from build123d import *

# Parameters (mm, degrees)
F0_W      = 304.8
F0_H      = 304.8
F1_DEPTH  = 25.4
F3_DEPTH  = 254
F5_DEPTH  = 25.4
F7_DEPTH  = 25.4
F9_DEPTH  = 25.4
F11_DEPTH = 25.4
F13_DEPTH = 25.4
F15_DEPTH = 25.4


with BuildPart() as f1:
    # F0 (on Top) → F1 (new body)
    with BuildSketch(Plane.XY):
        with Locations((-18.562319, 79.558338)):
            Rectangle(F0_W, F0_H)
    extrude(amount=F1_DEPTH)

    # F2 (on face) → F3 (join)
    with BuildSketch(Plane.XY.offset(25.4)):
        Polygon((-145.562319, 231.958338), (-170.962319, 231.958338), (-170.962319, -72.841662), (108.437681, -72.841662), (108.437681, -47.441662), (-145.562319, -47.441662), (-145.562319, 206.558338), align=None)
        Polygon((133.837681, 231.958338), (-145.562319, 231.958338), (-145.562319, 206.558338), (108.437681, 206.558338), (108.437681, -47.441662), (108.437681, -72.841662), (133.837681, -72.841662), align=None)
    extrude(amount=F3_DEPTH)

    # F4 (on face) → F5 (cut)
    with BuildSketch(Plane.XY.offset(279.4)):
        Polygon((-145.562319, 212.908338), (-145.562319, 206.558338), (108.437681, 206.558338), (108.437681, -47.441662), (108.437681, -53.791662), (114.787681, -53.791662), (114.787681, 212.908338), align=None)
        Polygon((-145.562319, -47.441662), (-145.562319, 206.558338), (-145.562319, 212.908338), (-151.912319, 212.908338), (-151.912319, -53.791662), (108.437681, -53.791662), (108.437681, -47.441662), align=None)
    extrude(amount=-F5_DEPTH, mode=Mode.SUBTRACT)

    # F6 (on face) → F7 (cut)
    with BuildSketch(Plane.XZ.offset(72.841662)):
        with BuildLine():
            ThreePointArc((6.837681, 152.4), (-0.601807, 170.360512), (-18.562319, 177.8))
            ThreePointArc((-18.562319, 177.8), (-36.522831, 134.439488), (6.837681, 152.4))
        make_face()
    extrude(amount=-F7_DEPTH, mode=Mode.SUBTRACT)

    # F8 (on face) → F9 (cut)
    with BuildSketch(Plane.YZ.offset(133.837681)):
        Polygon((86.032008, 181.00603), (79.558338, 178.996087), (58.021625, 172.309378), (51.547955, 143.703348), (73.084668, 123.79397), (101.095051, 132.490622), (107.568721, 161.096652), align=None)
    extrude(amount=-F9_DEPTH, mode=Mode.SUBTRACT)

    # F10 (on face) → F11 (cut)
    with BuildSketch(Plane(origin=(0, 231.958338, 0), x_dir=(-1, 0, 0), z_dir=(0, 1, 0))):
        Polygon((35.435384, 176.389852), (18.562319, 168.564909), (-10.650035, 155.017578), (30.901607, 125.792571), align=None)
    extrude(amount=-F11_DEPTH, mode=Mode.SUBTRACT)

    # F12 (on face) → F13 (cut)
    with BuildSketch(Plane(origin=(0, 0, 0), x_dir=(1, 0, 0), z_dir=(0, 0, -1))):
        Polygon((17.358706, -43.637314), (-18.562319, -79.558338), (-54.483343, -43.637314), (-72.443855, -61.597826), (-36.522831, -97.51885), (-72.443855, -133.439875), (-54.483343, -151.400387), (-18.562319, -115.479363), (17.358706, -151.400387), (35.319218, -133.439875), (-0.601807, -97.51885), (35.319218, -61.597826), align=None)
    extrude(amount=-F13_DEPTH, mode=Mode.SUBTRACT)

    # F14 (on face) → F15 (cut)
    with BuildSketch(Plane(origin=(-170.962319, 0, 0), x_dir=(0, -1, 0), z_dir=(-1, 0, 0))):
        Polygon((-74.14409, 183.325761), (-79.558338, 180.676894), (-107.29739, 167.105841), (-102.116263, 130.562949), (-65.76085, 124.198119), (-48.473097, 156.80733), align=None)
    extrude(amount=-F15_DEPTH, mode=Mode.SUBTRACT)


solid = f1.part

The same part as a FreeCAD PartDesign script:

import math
import FreeCAD as App
import Part
import Sketcher
Q = App.Units.Quantity

doc = App.newDocument("Part")
body = doc.addObject("PartDesign::Body", "Body")

# Sketch on XY plane
sketch1 = body.newObject("Sketcher::SketchObject", "Sketch")
sketch1.AttachmentSupport = (doc.getObject("XY_Plane"), [""])
sketch1.MapMode = "FlatFace"
sketch1.addGeometry([
    Part.LineSegment(App.Vector(-171, 232, 0), App.Vector(-171, -73, 0)),
    Part.LineSegment(App.Vector(-171, -73, 0), App.Vector(134, -73, 0)),
    Part.LineSegment(App.Vector(134, -73, 0), App.Vector(134, 232, 0)),
    Part.LineSegment(App.Vector(134, 232, 0), App.Vector(-171, 232, 0)),
], False)
sketch1.addConstraint([
    Sketcher.Constraint("Coincident", 0, 2, 1, 1),
    Sketcher.Constraint("Coincident", 1, 2, 2, 1),
    Sketcher.Constraint("Coincident", 2, 2, 3, 1),
    Sketcher.Constraint("Coincident", 3, 2, 0, 1),
    Sketcher.Constraint("Vertical", 0),
    Sketcher.Constraint("Horizontal", 1),
    Sketcher.Constraint("Vertical", 2),
    Sketcher.Constraint("Horizontal", 3),
    Sketcher.Constraint("Equal", 3, 0),
    Sketcher.Constraint("DistanceX", 1, 1, 1, 2, Q("12 in")),
    Sketcher.Constraint("DistanceX", 0, 2, -1, 1, Q("6.7308 in")),
    Sketcher.Constraint("DistanceY", 0, 2, -1, 1, 72.841662),
])
pad1 = body.newObject("PartDesign::Pad", "Pad")
pad1.Profile = sketch1
pad1.Length = Q("1 in")

# Sketch on XY plane
sketch2 = body.newObject("Sketcher::SketchObject", "Sketch001")
sketch2.AttachmentSupport = (doc.getObject("XY_Plane"), [""])
sketch2.MapMode = "FlatFace"
sketch2.AttachmentOffset = App.Placement(App.Vector(0, 0, 1 * 25.4), App.Rotation())
sketch2.addGeometry([
    Part.LineSegment(App.Vector(-171, 232, 0), App.Vector(-171, -73, 0)),  # 0
    Part.LineSegment(App.Vector(-171, -73, 0), App.Vector(134, -73, 0)),  # 1
    Part.LineSegment(App.Vector(134, -73, 0), App.Vector(134, 232, 0)),  # 2
    Part.LineSegment(App.Vector(134, 232, 0), App.Vector(-171, 232, 0)),  # 3
    Part.LineSegment(App.Vector(108, -47, 0), App.Vector(-146, -47, 0)),  # 4
    Part.LineSegment(App.Vector(-146, -47, 0), App.Vector(-146, 207, 0)),  # 5
    Part.LineSegment(App.Vector(-146, 207, 0), App.Vector(108, 207, 0)),  # 6
    Part.LineSegment(App.Vector(108, 207, 0), App.Vector(108, -47, 0)),  # 7
], False)
sketch2.addConstraint([
    Sketcher.Constraint("Coincident", 0, 2, 1, 1),
    Sketcher.Constraint("Coincident", 1, 2, 2, 1),
    Sketcher.Constraint("Coincident", 2, 2, 3, 1),
    Sketcher.Constraint("Coincident", 3, 2, 0, 1),
    Sketcher.Constraint("Coincident", 4, 2, 5, 1),
    Sketcher.Constraint("Coincident", 5, 2, 6, 1),
    Sketcher.Constraint("Coincident", 6, 2, 7, 1),
    Sketcher.Constraint("Coincident", 7, 2, 4, 1),
    Sketcher.Constraint("Vertical", 0),
    Sketcher.Constraint("Horizontal", 1),
    Sketcher.Constraint("Vertical", 2),
    Sketcher.Constraint("Horizontal", 3),
    Sketcher.Constraint("Horizontal", 4),
    Sketcher.Constraint("Vertical", 5),
    Sketcher.Constraint("Horizontal", 6),
    Sketcher.Constraint("Vertical", 7),
    Sketcher.Constraint("Equal", 3, 0),
    Sketcher.Constraint("Equal", 6, 5),
    Sketcher.Constraint("DistanceX", 1, 1, 1, 2, Q("12 in")),
    Sketcher.Constraint("DistanceX", 4, 2, 4, 1, Q("10 in")),
    Sketcher.Constraint("DistanceX", 0, 2, 4, 2, Q("1 in")),
    Sketcher.Constraint("DistanceY", 0, 2, 4, 2, Q("1 in")),
    Sketcher.Constraint("DistanceX", 0, 2, -1, 1, Q("6.7308 in")),
    Sketcher.Constraint("DistanceY", 0, 2, -1, 1, 72.841662),
])
pad2 = body.newObject("PartDesign::Pad", "Pad001")
pad2.Profile = sketch2
pad2.Length = Q("10 in")

# Sketch on XY plane
sketch3 = body.newObject("Sketcher::SketchObject", "Sketch002")
sketch3.AttachmentSupport = (doc.getObject("XY_Plane"), [""])
sketch3.MapMode = "FlatFace"
sketch3.AttachmentOffset = App.Placement(App.Vector(0, 0, 11 * 25.4), App.Rotation())
sketch3.addGeometry([
    Part.LineSegment(App.Vector(115, -54, 0), App.Vector(115, 213, 0)),  # 0
    Part.LineSegment(App.Vector(115, 213, 0), App.Vector(-152, 213, 0)),  # 1
    Part.LineSegment(App.Vector(-152, 213, 0), App.Vector(-152, -54, 0)),  # 2
    Part.LineSegment(App.Vector(-152, -54, 0), App.Vector(115, -54, 0)),  # 3
    Part.LineSegment(App.Vector(-146, 207, 0), App.Vector(108, 207, 0)),  # 4
    Part.LineSegment(App.Vector(108, 207, 0), App.Vector(108, -47, 0)),  # 5
    Part.LineSegment(App.Vector(108, -47, 0), App.Vector(-146, -47, 0)),  # 6
    Part.LineSegment(App.Vector(-146, -47, 0), App.Vector(-146, 207, 0)),  # 7
], False)
sketch3.addConstraint([
    Sketcher.Constraint("Coincident", 0, 2, 1, 1),
    Sketcher.Constraint("Coincident", 1, 2, 2, 1),
    Sketcher.Constraint("Coincident", 2, 2, 3, 1),
    Sketcher.Constraint("Coincident", 3, 2, 0, 1),
    Sketcher.Constraint("Coincident", 4, 2, 5, 1),
    Sketcher.Constraint("Coincident", 5, 2, 6, 1),
    Sketcher.Constraint("Coincident", 6, 2, 7, 1),
    Sketcher.Constraint("Coincident", 7, 2, 4, 1),
    Sketcher.Constraint("Vertical", 0),
    Sketcher.Constraint("Horizontal", 1),
    Sketcher.Constraint("Vertical", 2),
    Sketcher.Constraint("Horizontal", 3),
    Sketcher.Constraint("Horizontal", 4),
    Sketcher.Constraint("Vertical", 5),
    Sketcher.Constraint("Horizontal", 6),
    Sketcher.Constraint("Vertical", 7),
    Sketcher.Constraint("Equal", 3, 0),
    Sketcher.Constraint("Equal", 6, 5),
    Sketcher.Constraint("DistanceX", 4, 1, 4, 2, Q("10 in")),
    Sketcher.Constraint("DistanceX", 1, 2, 1, 1, Q("10.5 in")),
    Sketcher.Constraint("DistanceX", 4, 2, 0, 2, Q("0.25 in")),
    Sketcher.Constraint("DistanceY", 4, 2, 0, 2, Q("0.25 in")),
    Sketcher.Constraint("DistanceX", -1, 1, 0, 2, Q("4.5192 in")),
    Sketcher.Constraint("DistanceY", -1, 1, 4, 2, 206.558338),
])
pocket1 = body.newObject("PartDesign::Pocket", "Pocket")
pocket1.Profile = sketch3
pocket1.Length = Q("1 in")

# Sketch on XZ plane
sketch4 = body.newObject("Sketcher::SketchObject", "Sketch003")
sketch4.AttachmentSupport = (doc.getObject("XZ_Plane"), [""])
sketch4.MapMode = "FlatFace"
sketch4.AttachmentOffset = App.Placement(App.Vector(0, 0, 72.841662), App.Rotation())
sketch4.addGeometry([
    Part.ArcOfCircle(Part.Circle(App.Vector(-19, 152, 0), App.Vector(0, 0, 1), 25), math.radians(0), math.radians(90)),
    Part.ArcOfCircle(Part.Circle(App.Vector(-19, 152, 0), App.Vector(0, 0, 1), 25), math.radians(90), math.radians(360)),
], False)
sketch4.addConstraint([
    Sketcher.Constraint("Tangent", 0, 1, 1, 2),
    Sketcher.Constraint("Coincident", 1, 1, 0, 2),
    Sketcher.Constraint("Horizontal", 1, 3, 0, 1),
    Sketcher.Constraint("Vertical", 0, 3, 1, 1),
    Sketcher.Constraint("Radius", 0, Q("1 in")),
    Sketcher.Constraint("DistanceY", -1, 1, 0, 3, Q("6 in")),
    Sketcher.Constraint("DistanceX", 0, 3, -1, 1, Q("0.7308 in")),
])
pocket2 = body.newObject("PartDesign::Pocket", "Pocket001")
pocket2.Profile = sketch4
pocket2.Length = Q("1 in")

# Sketch on YZ plane
sketch5 = body.newObject("Sketcher::SketchObject", "Sketch004")
sketch5.AttachmentSupport = (doc.getObject("YZ_Plane"), [""])
sketch5.MapMode = "FlatFace"
sketch5.AttachmentOffset = App.Placement(App.Vector(0, 0, 5.2692 * 25.4), App.Rotation())
sketch5.addGeometry([
    Part.LineSegment(App.Vector(86, 181, 0), App.Vector(80, 179, 0)),  # 0
    Part.LineSegment(App.Vector(80, 179, 0), App.Vector(58, 172, 0)),  # 1
    Part.LineSegment(App.Vector(58, 172, 0), App.Vector(52, 144, 0)),  # 2
    Part.LineSegment(App.Vector(52, 144, 0), App.Vector(73, 124, 0)),  # 3
    Part.LineSegment(App.Vector(73, 124, 0), App.Vector(101, 132, 0)),  # 4
    Part.LineSegment(App.Vector(101, 132, 0), App.Vector(108, 161, 0)),  # 5
    Part.LineSegment(App.Vector(108, 161, 0), App.Vector(86, 181, 0)),  # 6
], False)
sketch5.addConstraint([
    Sketcher.Constraint("Coincident", 0, 2, 1, 1),
    Sketcher.Constraint("Coincident", 1, 2, 2, 1),
    Sketcher.Constraint("Coincident", 2, 2, 3, 1),
    Sketcher.Constraint("Coincident", 3, 2, 4, 1),
    Sketcher.Constraint("Coincident", 4, 2, 5, 1),
    Sketcher.Constraint("Coincident", 5, 2, 6, 1),
    Sketcher.Constraint("Coincident", 6, 2, 0, 1),
    Sketcher.Constraint("Parallel", 0, 1),
    Sketcher.Constraint("Parallel", 1, 4),
    Sketcher.Constraint("Parallel", 2, 5),
    Sketcher.Constraint("Parallel", 3, 6),
    Sketcher.Constraint("Equal", 2, 3),
    Sketcher.Constraint("Equal", 3, 4),
    Sketcher.Constraint("Equal", 4, 5),
    Sketcher.Constraint("DistanceX", -1, 1, 0, 2, 79.558338),
    Sketcher.Constraint("DistanceY", -1, 1, 1, 2, 172.309378),
    Sketcher.Constraint("DistanceY", -1, 1, 2, 2, 143.703348),
    Sketcher.Constraint("DistanceY", -1, 1, 3, 2, 123.79397),
    Sketcher.Constraint("DistanceX", -1, 1, 4, 2, 101.095051),
    Sketcher.Constraint("DistanceY", -1, 1, 4, 2, 132.490622),
    Sketcher.Constraint("DistanceX", -1, 1, 5, 2, 107.568721),
])
pocket3 = body.newObject("PartDesign::Pocket", "Pocket002")
pocket3.Profile = sketch5
pocket3.Length = Q("1 in")

# Sketch on XZ plane
sketch6 = body.newObject("Sketcher::SketchObject", "Sketch005")
sketch6.AttachmentSupport = (doc.getObject("XZ_Plane"), [""])
sketch6.MapMode = "FlatFace"
sketch6.AttachmentOffset = App.Placement(App.Vector(0, 0, -231.958338), App.Rotation())
sketch6.addGeometry([
    Part.LineSegment(App.Vector(-35, 176, 0), App.Vector(-19, 169, 0)),
    Part.LineSegment(App.Vector(-19, 169, 0), App.Vector(11, 155, 0)),
    Part.LineSegment(App.Vector(11, 155, 0), App.Vector(-31, 126, 0)),
    Part.LineSegment(App.Vector(-31, 126, 0), App.Vector(-35, 176, 0)),
], False)
sketch6.addConstraint([
    Sketcher.Constraint("Coincident", 0, 2, 1, 1),
    Sketcher.Constraint("Coincident", 1, 2, 2, 1),
    Sketcher.Constraint("Coincident", 2, 2, 3, 1),
    Sketcher.Constraint("Coincident", 3, 2, 0, 1),
    Sketcher.Constraint("Parallel", 0, 1),
    Sketcher.Constraint("Equal", 2, 3),
    Sketcher.Constraint("Distance", 2, Q("2 in")),
    Sketcher.Constraint("DistanceX", 0, 2, -1, 1, Q("0.7308 in")),
    Sketcher.Constraint("DistanceY", -1, 1, 0, 2, 168.564909),
    Sketcher.Constraint("DistanceY", -1, 1, 2, 2, 125.792571),
    Sketcher.Constraint("DistanceY", -1, 1, 3, 2, 176.389852),
    Sketcher.Constraint("DistanceY", 1, 2, 0, 2, 13.547331),
])
pocket4 = body.newObject("PartDesign::Pocket", "Pocket003")
pocket4.Profile = sketch6
pocket4.Length = Q("1 in")
pocket4.Reversed = True

# Sketch on XY plane
sketch7 = body.newObject("Sketcher::SketchObject", "Sketch006")
sketch7.AttachmentSupport = (doc.getObject("XY_Plane"), [""])
sketch7.MapMode = "FlatFace"
sketch7.addGeometry([
    Part.LineSegment(App.Vector(17, 44, 0), App.Vector(-19, 80, 0)),  # 0
    Part.LineSegment(App.Vector(-19, 80, 0), App.Vector(-54, 44, 0)),  # 1
    Part.LineSegment(App.Vector(-54, 44, 0), App.Vector(-72, 62, 0)),  # 2
    Part.LineSegment(App.Vector(-72, 62, 0), App.Vector(-37, 98, 0)),  # 3
    Part.LineSegment(App.Vector(-37, 98, 0), App.Vector(-72, 133, 0)),  # 4
    Part.LineSegment(App.Vector(-72, 133, 0), App.Vector(-54, 151, 0)),  # 5
    Part.LineSegment(App.Vector(-54, 151, 0), App.Vector(-19, 115, 0)),  # 6
    Part.LineSegment(App.Vector(-19, 115, 0), App.Vector(17, 151, 0)),  # 7
    Part.LineSegment(App.Vector(17, 151, 0), App.Vector(35, 133, 0)),  # 8
    Part.LineSegment(App.Vector(35, 133, 0), App.Vector(-1, 98, 0)),  # 9
    Part.LineSegment(App.Vector(-1, 98, 0), App.Vector(35, 62, 0)),  # 10
    Part.LineSegment(App.Vector(35, 62, 0), App.Vector(17, 44, 0)),  # 11
], False)
sketch7.addConstraint([
    Sketcher.Constraint("Coincident", 0, 2, 1, 1),
    Sketcher.Constraint("Coincident", 1, 2, 2, 1),
    Sketcher.Constraint("Coincident", 2, 2, 3, 1),
    Sketcher.Constraint("Coincident", 3, 2, 4, 1),
    Sketcher.Constraint("Coincident", 4, 2, 5, 1),
    Sketcher.Constraint("Coincident", 5, 2, 6, 1),
    Sketcher.Constraint("Coincident", 6, 2, 7, 1),
    Sketcher.Constraint("Coincident", 7, 2, 8, 1),
    Sketcher.Constraint("Coincident", 8, 2, 9, 1),
    Sketcher.Constraint("Coincident", 9, 2, 10, 1),
    Sketcher.Constraint("Coincident", 10, 2, 11, 1),
    Sketcher.Constraint("Coincident", 11, 2, 0, 1),
    Sketcher.Constraint("Perpendicular", 0, 1),
    Sketcher.Constraint("Perpendicular", 1, 2),
    Sketcher.Constraint("Perpendicular", 2, 3),
    Sketcher.Constraint("Perpendicular", 3, 4),
    Sketcher.Constraint("Perpendicular", 4, 5),
    Sketcher.Constraint("Perpendicular", 5, 6),
    Sketcher.Constraint("Perpendicular", 6, 7),
    Sketcher.Constraint("Perpendicular", 7, 8),
    Sketcher.Constraint("Perpendicular", 8, 9),
    Sketcher.Constraint("Perpendicular", 9, 10),
    Sketcher.Constraint("Perpendicular", 10, 11),
    Sketcher.Constraint("Horizontal", 5, 2, 7, 2),
    Sketcher.Constraint("Horizontal", 4, 2, 8, 2),
    Sketcher.Constraint("Horizontal", 3, 2, 9, 2),
    Sketcher.Constraint("Horizontal", 2, 2, 10, 2),
    Sketcher.Constraint("Horizontal", 1, 2, 11, 2),
    Sketcher.Constraint("Vertical", 2, 2, 4, 2),
    Sketcher.Constraint("Vertical", 1, 2, 5, 2),
    Sketcher.Constraint("Vertical", 0, 2, 6, 2),
    Sketcher.Constraint("Equal", 1, 3),
    Sketcher.Constraint("Distance", 0, Q("2 in")),
    Sketcher.Constraint("Distance", 2, Q("1 in")),
    Sketcher.Constraint("DistanceX", 0, 2, -1, 1, Q("0.7308 in")),
    Sketcher.Constraint("DistanceY", -1, 1, 0, 2, 79.558338),
])
pocket5 = body.newObject("PartDesign::Pocket", "Pocket004")
pocket5.Profile = sketch7
pocket5.Length = Q("1 in")
pocket5.Reversed = True

# Sketch on YZ plane
sketch8 = body.newObject("Sketcher::SketchObject", "Sketch007")
sketch8.AttachmentSupport = (doc.getObject("YZ_Plane"), [""])
sketch8.MapMode = "FlatFace"
sketch8.AttachmentOffset = App.Placement(App.Vector(0, 0, -6.7308 * 25.4), App.Rotation())
sketch8.addGeometry([
    Part.LineSegment(App.Vector(74, 183, 0), App.Vector(80, 181, 0)),  # 0
    Part.LineSegment(App.Vector(80, 181, 0), App.Vector(107, 167, 0)),  # 1
    Part.LineSegment(App.Vector(107, 167, 0), App.Vector(102, 131, 0)),  # 2
    Part.LineSegment(App.Vector(102, 131, 0), App.Vector(66, 124, 0)),  # 3
    Part.LineSegment(App.Vector(66, 124, 0), App.Vector(48, 157, 0)),  # 4
    Part.LineSegment(App.Vector(48, 157, 0), App.Vector(74, 183, 0)),  # 5
], False)
sketch8.addConstraint([
    Sketcher.Constraint("Coincident", 0, 2, 1, 1),
    Sketcher.Constraint("Coincident", 1, 2, 2, 1),
    Sketcher.Constraint("Coincident", 2, 2, 3, 1),
    Sketcher.Constraint("Coincident", 3, 2, 4, 1),
    Sketcher.Constraint("Coincident", 4, 2, 5, 1),
    Sketcher.Constraint("Coincident", 5, 2, 0, 1),
    Sketcher.Constraint("Parallel", 0, 1),
    Sketcher.Constraint("Equal", 2, 3),
    Sketcher.Constraint("Equal", 3, 4),
    Sketcher.Constraint("Equal", 4, 5),
    Sketcher.Constraint("DistanceX", 5, 2, 1, 2, 33.1533),
    Sketcher.Constraint("Distance", 2, 36.90836),
    Sketcher.Constraint("DistanceX", -1, 1, 0, 2, 79.558338),
    Sketcher.Constraint("DistanceX", -1, 1, 1, 2, 107.29739),
    Sketcher.Constraint("DistanceY", -1, 1, 1, 2, 167.105841),
    Sketcher.Constraint("DistanceY", -1, 1, 2, 2, 130.562949),
    Sketcher.Constraint("DistanceX", -1, 1, 3, 2, 65.76085),
    Sketcher.Constraint("DistanceY", -1, 1, 4, 2, 156.80733),
])
pocket6 = body.newObject("PartDesign::Pocket", "Pocket005")
pocket6.Profile = sketch8
pocket6.Length = Q("1 in")
pocket6.Reversed = True

doc.recompute()
